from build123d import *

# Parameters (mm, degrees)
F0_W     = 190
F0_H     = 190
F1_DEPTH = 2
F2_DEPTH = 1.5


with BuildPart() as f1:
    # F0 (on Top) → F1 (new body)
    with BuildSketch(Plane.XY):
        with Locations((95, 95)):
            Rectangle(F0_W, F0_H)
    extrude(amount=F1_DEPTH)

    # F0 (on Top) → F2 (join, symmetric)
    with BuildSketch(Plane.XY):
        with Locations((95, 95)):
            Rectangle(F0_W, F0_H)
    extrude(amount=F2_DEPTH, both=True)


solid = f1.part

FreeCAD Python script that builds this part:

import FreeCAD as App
import Part
import Sketcher

V = App.Vector
Q = App.Units.Quantity

doc = App.newDocument("Part")
body = doc.addObject("PartDesign::Body", "Body")

# Sketch on XY plane
sketch1 = body.newObject("Sketcher::SketchObject", "Sketch")
sketch1.AttachmentSupport = (doc.getObject("XY_Plane"), [""])
sketch1.MapMode = "FlatFace"
sketch1.addGeometry([
    Part.LineSegment(V(0, 190, 0), V(0, 0, 0)),
    Part.LineSegment(V(0, 0, 0), V(190, 0, 0)),
    Part.LineSegment(V(190, 0, 0), V(190, 190, 0)),
    Part.LineSegment(V(190, 190, 0), V(0, 190, 0)),
], False)
sketch1.addConstraint([
    Sketcher.Constraint("Coincident", 0, 2, 1, 1),
    Sketcher.Constraint("Coincident", 1, 2, 2, 1),
    Sketcher.Constraint("Coincident", 2, 2, 3, 1),
    Sketcher.Constraint("Coincident", 3, 2, 0, 1),
    Sketcher.Constraint("Vertical", 0),
    Sketcher.Constraint("Horizontal", 1),
    Sketcher.Constraint("Vertical", 2),
    Sketcher.Constraint("Horizontal", 3),
    Sketcher.Constraint("Coincident", 0, 2, -1, 1),
    Sketcher.Constraint("Equal", 3, 0),
    Sketcher.Constraint("DistanceX", 1, 1, 1, 2, Q("190 mm")),
])
pad1 = body.newObject("PartDesign::Pad", "Pad")
pad1.Profile = sketch1
pad1.Length = 2

# Sketch on XY plane
sketch2 = body.newObject("Sketcher::SketchObject", "Sketch001")
sketch2.AttachmentSupport = (doc.getObject("XY_Plane"), [""])
sketch2.MapMode = "FlatFace"
sketch2.addGeometry([
    Part.LineSegment(V(0, 190, 0), V(0, 0, 0)),
    Part.LineSegment(V(0, 0, 0), V(190, 0, 0)),
    Part.LineSegment(V(190, 0, 0), V(190, 190, 0)),
    Part.LineSegment(V(190, 190, 0), V(0, 190, 0)),
], False)
sketch2.addConstraint([
    Sketcher.Constraint("Coincident", 0, 2, 1, 1),
    Sketcher.Constraint("Coincident", 1, 2, 2, 1),
    Sketcher.Constraint("Coincident", 2, 2, 3, 1),
    Sketcher.Constraint("Coincident", 3, 2, 0, 1),
    Sketcher.Constraint("Vertical", 0),
    Sketcher.Constraint("Horizontal", 1),
    Sketcher.Constraint("Vertical", 2),
    Sketcher.Constraint("Horizontal", 3),
    Sketcher.Constraint("Coincident", 0, 2, -1, 1),
    Sketcher.Constraint("Equal", 3, 0),
    Sketcher.Constraint("DistanceX", 1, 1, 1, 2, Q("190 mm")),
])
pad2 = body.newObject("PartDesign::Pad", "Pad001")
pad2.Profile = sketch2
pad2.Length = 3
pad2.Midplane = True

doc.recompute()
